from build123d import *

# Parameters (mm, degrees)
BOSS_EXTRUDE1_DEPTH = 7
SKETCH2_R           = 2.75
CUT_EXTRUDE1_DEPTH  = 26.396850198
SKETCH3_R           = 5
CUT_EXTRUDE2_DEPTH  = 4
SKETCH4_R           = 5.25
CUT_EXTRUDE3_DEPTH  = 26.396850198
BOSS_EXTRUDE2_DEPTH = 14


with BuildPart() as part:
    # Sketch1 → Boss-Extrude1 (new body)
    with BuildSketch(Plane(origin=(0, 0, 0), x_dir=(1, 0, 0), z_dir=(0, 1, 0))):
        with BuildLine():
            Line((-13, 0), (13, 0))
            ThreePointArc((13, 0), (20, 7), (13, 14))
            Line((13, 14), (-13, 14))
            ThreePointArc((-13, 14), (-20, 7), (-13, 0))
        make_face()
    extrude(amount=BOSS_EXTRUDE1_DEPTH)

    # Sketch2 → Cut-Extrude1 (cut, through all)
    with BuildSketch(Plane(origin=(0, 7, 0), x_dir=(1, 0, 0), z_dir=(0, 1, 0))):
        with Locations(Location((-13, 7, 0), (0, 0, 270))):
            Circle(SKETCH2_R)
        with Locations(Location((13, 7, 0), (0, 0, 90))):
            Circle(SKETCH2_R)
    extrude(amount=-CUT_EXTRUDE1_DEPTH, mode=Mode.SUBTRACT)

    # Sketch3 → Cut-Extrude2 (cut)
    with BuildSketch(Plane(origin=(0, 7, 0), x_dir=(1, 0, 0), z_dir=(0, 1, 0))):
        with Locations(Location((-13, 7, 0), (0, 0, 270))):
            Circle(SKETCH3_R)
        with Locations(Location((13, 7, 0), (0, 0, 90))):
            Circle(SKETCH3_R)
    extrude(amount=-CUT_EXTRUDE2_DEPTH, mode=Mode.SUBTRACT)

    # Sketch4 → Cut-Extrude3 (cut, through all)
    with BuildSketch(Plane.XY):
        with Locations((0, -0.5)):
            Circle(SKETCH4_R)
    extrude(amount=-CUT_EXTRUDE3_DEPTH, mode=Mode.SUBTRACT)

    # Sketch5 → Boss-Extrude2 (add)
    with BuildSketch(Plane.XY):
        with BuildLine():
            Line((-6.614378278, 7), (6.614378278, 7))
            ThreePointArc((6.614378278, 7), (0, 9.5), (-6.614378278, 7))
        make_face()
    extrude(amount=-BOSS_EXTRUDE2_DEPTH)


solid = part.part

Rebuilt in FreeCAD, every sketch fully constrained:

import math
import FreeCAD as App
import Part
import Sketcher

V = App.Vector
Q = App.Units.Quantity

doc = App.newDocument("Part")
params = doc.addObject("Spreadsheet::Sheet", "Params")
for row, (alias, value) in enumerate([
    ("sketch1_radius", "7 mm"),
    ("sketch1_width", "26 mm"),
    ("pad1_length", "7 mm"),
    ("sketch2_diameter", "5.5 mm"),
    ("sketch3_diameter", "10 mm"),
    ("pocket2_length", "4 mm"),
    ("sketch4_diameter", "10.5 mm"),
    ("sketch5_radius", "10 mm"),
    ("pad2_length", "14 mm"),
], start=1):
    params.set(f"A{row}", alias)
    params.set(f"B{row}", "=" + value)
    params.setAlias(f"B{row}", alias)

body = doc.addObject("PartDesign::Body", "Body")

# Sketch on XZ plane
sketch1 = body.newObject("Sketcher::SketchObject", "Sketch")
sketch1.AttachmentSupport = (doc.getObject("XZ_Plane"), [""])
sketch1.MapMode = "FlatFace"
sketch1.addGeometry([
    Part.LineSegment(V(-13, 0, 0), V(13, 0, 0)),
    Part.ArcOfCircle(Part.Circle(V(13, -7, 0), V(0, 0, 1), 7), math.radians(-90), math.radians(90)),
    Part.LineSegment(V(13, -14, 0), V(-13, -14, 0)),
    Part.ArcOfCircle(Part.Circle(V(-13, -7, 0), V(0, 0, 1), 7), math.radians(90), math.radians(270)),
], False)
sketch1.addConstraint([
    Sketcher.Constraint("Tangent", 0, 2, 1, 2),
    Sketcher.Constraint("Tangent", 1, 1, 2, 1),
    Sketcher.Constraint("Tangent", 2, 2, 3, 2),
    Sketcher.Constraint("Tangent", 3, 1, 0, 1),
    Sketcher.Constraint("Horizontal", 0),
    Sketcher.Constraint("Horizontal", 2),
    Sketcher.Constraint("Symmetric", 0, 2, 3, 1, -1, 1),
    Sketcher.Constraint("Radius", 1, Q("7 mm")),
    Sketcher.Constraint("DistanceX", 0, 1, 0, 2, Q("26 mm")),
])
sketch1.setExpression("Constraints[7]", "Params.sketch1_radius")
sketch1.setExpression("Constraints[8]", "Params.sketch1_width")
pad1 = body.newObject("PartDesign::Pad", "Pad")
pad1.Profile = sketch1
pad1.setExpression("Length", "Params.pad1_length")
pad1.Reversed = True

# Sketch on XZ plane
sketch2 = body.newObject("Sketcher::SketchObject", "Sketch001")
sketch2.AttachmentSupport = (doc.getObject("XZ_Plane"), [""])
sketch2.MapMode = "FlatFace"
sketch2.AttachmentOffset = App.Placement(V(0, 0, -7), App.Rotation())
sketch2.addGeometry([
    Part.Circle(V(-13, -7, 0), V(0, 0, 1), 2.8),
    Part.Circle(V(13, -7, 0), V(0, 0, 1), 2.8),
], False)
sketch2.addConstraint([
    Sketcher.Constraint("Equal", 0, 1),
    Sketcher.Constraint("Symmetric", 0, 3, 1, 3, -2),
    Sketcher.Constraint("Diameter", 0, Q("5.5 mm")),
    Sketcher.Constraint("DistanceX", 0, 3, -1, 1, Q("13 mm")),
    Sketcher.Constraint("DistanceY", 0, 3, -1, 1, Q("7 mm")),
])
sketch2.setExpression("Constraints[2]", "Params.sketch2_diameter")
pocket1 = body.newObject("PartDesign::Pocket", "Pocket")
pocket1.Profile = sketch2
pocket1.Type = "ThroughAll"
pocket1.Reversed = True

# Sketch on XZ plane
sketch3 = body.newObject("Sketcher::SketchObject", "Sketch002")
sketch3.AttachmentSupport = (doc.getObject("XZ_Plane"), [""])
sketch3.MapMode = "FlatFace"
sketch3.AttachmentOffset = App.Placement(V(0, 0, -7), App.Rotation())
sketch3.addGeometry([
    Part.Circle(V(-13, -7, 0), V(0, 0, 1), 5),
    Part.Circle(V(13, -7, 0), V(0, 0, 1), 5),
], False)
sketch3.addConstraint([
    Sketcher.Constraint("Equal", 0, 1),
    Sketcher.Constraint("Symmetric", 0, 3, 1, 3, -2),
    Sketcher.Constraint("Diameter", 0, Q("10 mm")),
    Sketcher.Constraint("DistanceX", 0, 3, -1, 1, Q("13 mm")),
    Sketcher.Constraint("DistanceY", 0, 3, -1, 1, Q("7 mm")),
])
sketch3.setExpression("Constraints[2]", "Params.sketch3_diameter")
pocket2 = body.newObject("PartDesign::Pocket", "Pocket001")
pocket2.Profile = sketch3
pocket2.setExpression("Length", "Params.pocket2_length")
pocket2.Reversed = True

# Sketch on XY plane
sketch4 = body.newObject("Sketcher::SketchObject", "Sketch003")
sketch4.AttachmentSupport = (doc.getObject("XY_Plane"), [""])
sketch4.MapMode = "FlatFace"
sketch4.addGeometry(Part.Circle(V(0, 0, 0), V(0, 0, 1), 5), False)
sketch4.addConstraint([
    Sketcher.Constraint("PointOnObject", 0, 3, -2),
    Sketcher.Constraint("Diameter", 0, Q("10.5 mm")),
    Sketcher.Constraint("DistanceY", 0, 3, -1, 1, Q("0.5 mm")),
])
sketch4.setExpression("Constraints[1]", "Params.sketch4_diameter")
pocket3 = body.newObject("PartDesign::Pocket", "Pocket002")
pocket3.Profile = sketch4
pocket3.Type = "ThroughAll"

# Sketch on XY plane
sketch5 = body.newObject("Sketcher::SketchObject", "Sketch004")
sketch5.AttachmentSupport = (doc.getObject("XY_Plane"), [""])
sketch5.MapMode = "FlatFace"
sketch5.addGeometry([
    Part.LineSegment(V(-7, 7, 0), V(7, 7, 0)),
    Part.ArcOfCircle(Part.Circle(V(0, -1, 0), V(0, 0, 1), 10), math.radians(49), math.radians(131)),
], False)
sketch5.addConstraint([
    Sketcher.Constraint("Coincident", 0, 1, 1, 2),
    Sketcher.Constraint("Coincident", 1, 1, 0, 2),
    Sketcher.Constraint("Horizontal", 0),
    Sketcher.Constraint("PointOnObject", 1, 3, -2),
    Sketcher.Constraint("Radius", 1, Q("10 mm")),
    Sketcher.Constraint("DistanceY", -1, 1, 0, 1, Q("7 mm")),
    Sketcher.Constraint("DistanceY", 1, 3, -1, 1, Q("0.5 mm")),
])
sketch5.setExpression("Constraints[4]", "Params.sketch5_radius")
pad2 = body.newObject("PartDesign::Pad", "Pad001")
pad2.Profile = sketch5
pad2.setExpression("Length", "Params.pad2_length")
pad2.Reversed = True

doc.recompute()
